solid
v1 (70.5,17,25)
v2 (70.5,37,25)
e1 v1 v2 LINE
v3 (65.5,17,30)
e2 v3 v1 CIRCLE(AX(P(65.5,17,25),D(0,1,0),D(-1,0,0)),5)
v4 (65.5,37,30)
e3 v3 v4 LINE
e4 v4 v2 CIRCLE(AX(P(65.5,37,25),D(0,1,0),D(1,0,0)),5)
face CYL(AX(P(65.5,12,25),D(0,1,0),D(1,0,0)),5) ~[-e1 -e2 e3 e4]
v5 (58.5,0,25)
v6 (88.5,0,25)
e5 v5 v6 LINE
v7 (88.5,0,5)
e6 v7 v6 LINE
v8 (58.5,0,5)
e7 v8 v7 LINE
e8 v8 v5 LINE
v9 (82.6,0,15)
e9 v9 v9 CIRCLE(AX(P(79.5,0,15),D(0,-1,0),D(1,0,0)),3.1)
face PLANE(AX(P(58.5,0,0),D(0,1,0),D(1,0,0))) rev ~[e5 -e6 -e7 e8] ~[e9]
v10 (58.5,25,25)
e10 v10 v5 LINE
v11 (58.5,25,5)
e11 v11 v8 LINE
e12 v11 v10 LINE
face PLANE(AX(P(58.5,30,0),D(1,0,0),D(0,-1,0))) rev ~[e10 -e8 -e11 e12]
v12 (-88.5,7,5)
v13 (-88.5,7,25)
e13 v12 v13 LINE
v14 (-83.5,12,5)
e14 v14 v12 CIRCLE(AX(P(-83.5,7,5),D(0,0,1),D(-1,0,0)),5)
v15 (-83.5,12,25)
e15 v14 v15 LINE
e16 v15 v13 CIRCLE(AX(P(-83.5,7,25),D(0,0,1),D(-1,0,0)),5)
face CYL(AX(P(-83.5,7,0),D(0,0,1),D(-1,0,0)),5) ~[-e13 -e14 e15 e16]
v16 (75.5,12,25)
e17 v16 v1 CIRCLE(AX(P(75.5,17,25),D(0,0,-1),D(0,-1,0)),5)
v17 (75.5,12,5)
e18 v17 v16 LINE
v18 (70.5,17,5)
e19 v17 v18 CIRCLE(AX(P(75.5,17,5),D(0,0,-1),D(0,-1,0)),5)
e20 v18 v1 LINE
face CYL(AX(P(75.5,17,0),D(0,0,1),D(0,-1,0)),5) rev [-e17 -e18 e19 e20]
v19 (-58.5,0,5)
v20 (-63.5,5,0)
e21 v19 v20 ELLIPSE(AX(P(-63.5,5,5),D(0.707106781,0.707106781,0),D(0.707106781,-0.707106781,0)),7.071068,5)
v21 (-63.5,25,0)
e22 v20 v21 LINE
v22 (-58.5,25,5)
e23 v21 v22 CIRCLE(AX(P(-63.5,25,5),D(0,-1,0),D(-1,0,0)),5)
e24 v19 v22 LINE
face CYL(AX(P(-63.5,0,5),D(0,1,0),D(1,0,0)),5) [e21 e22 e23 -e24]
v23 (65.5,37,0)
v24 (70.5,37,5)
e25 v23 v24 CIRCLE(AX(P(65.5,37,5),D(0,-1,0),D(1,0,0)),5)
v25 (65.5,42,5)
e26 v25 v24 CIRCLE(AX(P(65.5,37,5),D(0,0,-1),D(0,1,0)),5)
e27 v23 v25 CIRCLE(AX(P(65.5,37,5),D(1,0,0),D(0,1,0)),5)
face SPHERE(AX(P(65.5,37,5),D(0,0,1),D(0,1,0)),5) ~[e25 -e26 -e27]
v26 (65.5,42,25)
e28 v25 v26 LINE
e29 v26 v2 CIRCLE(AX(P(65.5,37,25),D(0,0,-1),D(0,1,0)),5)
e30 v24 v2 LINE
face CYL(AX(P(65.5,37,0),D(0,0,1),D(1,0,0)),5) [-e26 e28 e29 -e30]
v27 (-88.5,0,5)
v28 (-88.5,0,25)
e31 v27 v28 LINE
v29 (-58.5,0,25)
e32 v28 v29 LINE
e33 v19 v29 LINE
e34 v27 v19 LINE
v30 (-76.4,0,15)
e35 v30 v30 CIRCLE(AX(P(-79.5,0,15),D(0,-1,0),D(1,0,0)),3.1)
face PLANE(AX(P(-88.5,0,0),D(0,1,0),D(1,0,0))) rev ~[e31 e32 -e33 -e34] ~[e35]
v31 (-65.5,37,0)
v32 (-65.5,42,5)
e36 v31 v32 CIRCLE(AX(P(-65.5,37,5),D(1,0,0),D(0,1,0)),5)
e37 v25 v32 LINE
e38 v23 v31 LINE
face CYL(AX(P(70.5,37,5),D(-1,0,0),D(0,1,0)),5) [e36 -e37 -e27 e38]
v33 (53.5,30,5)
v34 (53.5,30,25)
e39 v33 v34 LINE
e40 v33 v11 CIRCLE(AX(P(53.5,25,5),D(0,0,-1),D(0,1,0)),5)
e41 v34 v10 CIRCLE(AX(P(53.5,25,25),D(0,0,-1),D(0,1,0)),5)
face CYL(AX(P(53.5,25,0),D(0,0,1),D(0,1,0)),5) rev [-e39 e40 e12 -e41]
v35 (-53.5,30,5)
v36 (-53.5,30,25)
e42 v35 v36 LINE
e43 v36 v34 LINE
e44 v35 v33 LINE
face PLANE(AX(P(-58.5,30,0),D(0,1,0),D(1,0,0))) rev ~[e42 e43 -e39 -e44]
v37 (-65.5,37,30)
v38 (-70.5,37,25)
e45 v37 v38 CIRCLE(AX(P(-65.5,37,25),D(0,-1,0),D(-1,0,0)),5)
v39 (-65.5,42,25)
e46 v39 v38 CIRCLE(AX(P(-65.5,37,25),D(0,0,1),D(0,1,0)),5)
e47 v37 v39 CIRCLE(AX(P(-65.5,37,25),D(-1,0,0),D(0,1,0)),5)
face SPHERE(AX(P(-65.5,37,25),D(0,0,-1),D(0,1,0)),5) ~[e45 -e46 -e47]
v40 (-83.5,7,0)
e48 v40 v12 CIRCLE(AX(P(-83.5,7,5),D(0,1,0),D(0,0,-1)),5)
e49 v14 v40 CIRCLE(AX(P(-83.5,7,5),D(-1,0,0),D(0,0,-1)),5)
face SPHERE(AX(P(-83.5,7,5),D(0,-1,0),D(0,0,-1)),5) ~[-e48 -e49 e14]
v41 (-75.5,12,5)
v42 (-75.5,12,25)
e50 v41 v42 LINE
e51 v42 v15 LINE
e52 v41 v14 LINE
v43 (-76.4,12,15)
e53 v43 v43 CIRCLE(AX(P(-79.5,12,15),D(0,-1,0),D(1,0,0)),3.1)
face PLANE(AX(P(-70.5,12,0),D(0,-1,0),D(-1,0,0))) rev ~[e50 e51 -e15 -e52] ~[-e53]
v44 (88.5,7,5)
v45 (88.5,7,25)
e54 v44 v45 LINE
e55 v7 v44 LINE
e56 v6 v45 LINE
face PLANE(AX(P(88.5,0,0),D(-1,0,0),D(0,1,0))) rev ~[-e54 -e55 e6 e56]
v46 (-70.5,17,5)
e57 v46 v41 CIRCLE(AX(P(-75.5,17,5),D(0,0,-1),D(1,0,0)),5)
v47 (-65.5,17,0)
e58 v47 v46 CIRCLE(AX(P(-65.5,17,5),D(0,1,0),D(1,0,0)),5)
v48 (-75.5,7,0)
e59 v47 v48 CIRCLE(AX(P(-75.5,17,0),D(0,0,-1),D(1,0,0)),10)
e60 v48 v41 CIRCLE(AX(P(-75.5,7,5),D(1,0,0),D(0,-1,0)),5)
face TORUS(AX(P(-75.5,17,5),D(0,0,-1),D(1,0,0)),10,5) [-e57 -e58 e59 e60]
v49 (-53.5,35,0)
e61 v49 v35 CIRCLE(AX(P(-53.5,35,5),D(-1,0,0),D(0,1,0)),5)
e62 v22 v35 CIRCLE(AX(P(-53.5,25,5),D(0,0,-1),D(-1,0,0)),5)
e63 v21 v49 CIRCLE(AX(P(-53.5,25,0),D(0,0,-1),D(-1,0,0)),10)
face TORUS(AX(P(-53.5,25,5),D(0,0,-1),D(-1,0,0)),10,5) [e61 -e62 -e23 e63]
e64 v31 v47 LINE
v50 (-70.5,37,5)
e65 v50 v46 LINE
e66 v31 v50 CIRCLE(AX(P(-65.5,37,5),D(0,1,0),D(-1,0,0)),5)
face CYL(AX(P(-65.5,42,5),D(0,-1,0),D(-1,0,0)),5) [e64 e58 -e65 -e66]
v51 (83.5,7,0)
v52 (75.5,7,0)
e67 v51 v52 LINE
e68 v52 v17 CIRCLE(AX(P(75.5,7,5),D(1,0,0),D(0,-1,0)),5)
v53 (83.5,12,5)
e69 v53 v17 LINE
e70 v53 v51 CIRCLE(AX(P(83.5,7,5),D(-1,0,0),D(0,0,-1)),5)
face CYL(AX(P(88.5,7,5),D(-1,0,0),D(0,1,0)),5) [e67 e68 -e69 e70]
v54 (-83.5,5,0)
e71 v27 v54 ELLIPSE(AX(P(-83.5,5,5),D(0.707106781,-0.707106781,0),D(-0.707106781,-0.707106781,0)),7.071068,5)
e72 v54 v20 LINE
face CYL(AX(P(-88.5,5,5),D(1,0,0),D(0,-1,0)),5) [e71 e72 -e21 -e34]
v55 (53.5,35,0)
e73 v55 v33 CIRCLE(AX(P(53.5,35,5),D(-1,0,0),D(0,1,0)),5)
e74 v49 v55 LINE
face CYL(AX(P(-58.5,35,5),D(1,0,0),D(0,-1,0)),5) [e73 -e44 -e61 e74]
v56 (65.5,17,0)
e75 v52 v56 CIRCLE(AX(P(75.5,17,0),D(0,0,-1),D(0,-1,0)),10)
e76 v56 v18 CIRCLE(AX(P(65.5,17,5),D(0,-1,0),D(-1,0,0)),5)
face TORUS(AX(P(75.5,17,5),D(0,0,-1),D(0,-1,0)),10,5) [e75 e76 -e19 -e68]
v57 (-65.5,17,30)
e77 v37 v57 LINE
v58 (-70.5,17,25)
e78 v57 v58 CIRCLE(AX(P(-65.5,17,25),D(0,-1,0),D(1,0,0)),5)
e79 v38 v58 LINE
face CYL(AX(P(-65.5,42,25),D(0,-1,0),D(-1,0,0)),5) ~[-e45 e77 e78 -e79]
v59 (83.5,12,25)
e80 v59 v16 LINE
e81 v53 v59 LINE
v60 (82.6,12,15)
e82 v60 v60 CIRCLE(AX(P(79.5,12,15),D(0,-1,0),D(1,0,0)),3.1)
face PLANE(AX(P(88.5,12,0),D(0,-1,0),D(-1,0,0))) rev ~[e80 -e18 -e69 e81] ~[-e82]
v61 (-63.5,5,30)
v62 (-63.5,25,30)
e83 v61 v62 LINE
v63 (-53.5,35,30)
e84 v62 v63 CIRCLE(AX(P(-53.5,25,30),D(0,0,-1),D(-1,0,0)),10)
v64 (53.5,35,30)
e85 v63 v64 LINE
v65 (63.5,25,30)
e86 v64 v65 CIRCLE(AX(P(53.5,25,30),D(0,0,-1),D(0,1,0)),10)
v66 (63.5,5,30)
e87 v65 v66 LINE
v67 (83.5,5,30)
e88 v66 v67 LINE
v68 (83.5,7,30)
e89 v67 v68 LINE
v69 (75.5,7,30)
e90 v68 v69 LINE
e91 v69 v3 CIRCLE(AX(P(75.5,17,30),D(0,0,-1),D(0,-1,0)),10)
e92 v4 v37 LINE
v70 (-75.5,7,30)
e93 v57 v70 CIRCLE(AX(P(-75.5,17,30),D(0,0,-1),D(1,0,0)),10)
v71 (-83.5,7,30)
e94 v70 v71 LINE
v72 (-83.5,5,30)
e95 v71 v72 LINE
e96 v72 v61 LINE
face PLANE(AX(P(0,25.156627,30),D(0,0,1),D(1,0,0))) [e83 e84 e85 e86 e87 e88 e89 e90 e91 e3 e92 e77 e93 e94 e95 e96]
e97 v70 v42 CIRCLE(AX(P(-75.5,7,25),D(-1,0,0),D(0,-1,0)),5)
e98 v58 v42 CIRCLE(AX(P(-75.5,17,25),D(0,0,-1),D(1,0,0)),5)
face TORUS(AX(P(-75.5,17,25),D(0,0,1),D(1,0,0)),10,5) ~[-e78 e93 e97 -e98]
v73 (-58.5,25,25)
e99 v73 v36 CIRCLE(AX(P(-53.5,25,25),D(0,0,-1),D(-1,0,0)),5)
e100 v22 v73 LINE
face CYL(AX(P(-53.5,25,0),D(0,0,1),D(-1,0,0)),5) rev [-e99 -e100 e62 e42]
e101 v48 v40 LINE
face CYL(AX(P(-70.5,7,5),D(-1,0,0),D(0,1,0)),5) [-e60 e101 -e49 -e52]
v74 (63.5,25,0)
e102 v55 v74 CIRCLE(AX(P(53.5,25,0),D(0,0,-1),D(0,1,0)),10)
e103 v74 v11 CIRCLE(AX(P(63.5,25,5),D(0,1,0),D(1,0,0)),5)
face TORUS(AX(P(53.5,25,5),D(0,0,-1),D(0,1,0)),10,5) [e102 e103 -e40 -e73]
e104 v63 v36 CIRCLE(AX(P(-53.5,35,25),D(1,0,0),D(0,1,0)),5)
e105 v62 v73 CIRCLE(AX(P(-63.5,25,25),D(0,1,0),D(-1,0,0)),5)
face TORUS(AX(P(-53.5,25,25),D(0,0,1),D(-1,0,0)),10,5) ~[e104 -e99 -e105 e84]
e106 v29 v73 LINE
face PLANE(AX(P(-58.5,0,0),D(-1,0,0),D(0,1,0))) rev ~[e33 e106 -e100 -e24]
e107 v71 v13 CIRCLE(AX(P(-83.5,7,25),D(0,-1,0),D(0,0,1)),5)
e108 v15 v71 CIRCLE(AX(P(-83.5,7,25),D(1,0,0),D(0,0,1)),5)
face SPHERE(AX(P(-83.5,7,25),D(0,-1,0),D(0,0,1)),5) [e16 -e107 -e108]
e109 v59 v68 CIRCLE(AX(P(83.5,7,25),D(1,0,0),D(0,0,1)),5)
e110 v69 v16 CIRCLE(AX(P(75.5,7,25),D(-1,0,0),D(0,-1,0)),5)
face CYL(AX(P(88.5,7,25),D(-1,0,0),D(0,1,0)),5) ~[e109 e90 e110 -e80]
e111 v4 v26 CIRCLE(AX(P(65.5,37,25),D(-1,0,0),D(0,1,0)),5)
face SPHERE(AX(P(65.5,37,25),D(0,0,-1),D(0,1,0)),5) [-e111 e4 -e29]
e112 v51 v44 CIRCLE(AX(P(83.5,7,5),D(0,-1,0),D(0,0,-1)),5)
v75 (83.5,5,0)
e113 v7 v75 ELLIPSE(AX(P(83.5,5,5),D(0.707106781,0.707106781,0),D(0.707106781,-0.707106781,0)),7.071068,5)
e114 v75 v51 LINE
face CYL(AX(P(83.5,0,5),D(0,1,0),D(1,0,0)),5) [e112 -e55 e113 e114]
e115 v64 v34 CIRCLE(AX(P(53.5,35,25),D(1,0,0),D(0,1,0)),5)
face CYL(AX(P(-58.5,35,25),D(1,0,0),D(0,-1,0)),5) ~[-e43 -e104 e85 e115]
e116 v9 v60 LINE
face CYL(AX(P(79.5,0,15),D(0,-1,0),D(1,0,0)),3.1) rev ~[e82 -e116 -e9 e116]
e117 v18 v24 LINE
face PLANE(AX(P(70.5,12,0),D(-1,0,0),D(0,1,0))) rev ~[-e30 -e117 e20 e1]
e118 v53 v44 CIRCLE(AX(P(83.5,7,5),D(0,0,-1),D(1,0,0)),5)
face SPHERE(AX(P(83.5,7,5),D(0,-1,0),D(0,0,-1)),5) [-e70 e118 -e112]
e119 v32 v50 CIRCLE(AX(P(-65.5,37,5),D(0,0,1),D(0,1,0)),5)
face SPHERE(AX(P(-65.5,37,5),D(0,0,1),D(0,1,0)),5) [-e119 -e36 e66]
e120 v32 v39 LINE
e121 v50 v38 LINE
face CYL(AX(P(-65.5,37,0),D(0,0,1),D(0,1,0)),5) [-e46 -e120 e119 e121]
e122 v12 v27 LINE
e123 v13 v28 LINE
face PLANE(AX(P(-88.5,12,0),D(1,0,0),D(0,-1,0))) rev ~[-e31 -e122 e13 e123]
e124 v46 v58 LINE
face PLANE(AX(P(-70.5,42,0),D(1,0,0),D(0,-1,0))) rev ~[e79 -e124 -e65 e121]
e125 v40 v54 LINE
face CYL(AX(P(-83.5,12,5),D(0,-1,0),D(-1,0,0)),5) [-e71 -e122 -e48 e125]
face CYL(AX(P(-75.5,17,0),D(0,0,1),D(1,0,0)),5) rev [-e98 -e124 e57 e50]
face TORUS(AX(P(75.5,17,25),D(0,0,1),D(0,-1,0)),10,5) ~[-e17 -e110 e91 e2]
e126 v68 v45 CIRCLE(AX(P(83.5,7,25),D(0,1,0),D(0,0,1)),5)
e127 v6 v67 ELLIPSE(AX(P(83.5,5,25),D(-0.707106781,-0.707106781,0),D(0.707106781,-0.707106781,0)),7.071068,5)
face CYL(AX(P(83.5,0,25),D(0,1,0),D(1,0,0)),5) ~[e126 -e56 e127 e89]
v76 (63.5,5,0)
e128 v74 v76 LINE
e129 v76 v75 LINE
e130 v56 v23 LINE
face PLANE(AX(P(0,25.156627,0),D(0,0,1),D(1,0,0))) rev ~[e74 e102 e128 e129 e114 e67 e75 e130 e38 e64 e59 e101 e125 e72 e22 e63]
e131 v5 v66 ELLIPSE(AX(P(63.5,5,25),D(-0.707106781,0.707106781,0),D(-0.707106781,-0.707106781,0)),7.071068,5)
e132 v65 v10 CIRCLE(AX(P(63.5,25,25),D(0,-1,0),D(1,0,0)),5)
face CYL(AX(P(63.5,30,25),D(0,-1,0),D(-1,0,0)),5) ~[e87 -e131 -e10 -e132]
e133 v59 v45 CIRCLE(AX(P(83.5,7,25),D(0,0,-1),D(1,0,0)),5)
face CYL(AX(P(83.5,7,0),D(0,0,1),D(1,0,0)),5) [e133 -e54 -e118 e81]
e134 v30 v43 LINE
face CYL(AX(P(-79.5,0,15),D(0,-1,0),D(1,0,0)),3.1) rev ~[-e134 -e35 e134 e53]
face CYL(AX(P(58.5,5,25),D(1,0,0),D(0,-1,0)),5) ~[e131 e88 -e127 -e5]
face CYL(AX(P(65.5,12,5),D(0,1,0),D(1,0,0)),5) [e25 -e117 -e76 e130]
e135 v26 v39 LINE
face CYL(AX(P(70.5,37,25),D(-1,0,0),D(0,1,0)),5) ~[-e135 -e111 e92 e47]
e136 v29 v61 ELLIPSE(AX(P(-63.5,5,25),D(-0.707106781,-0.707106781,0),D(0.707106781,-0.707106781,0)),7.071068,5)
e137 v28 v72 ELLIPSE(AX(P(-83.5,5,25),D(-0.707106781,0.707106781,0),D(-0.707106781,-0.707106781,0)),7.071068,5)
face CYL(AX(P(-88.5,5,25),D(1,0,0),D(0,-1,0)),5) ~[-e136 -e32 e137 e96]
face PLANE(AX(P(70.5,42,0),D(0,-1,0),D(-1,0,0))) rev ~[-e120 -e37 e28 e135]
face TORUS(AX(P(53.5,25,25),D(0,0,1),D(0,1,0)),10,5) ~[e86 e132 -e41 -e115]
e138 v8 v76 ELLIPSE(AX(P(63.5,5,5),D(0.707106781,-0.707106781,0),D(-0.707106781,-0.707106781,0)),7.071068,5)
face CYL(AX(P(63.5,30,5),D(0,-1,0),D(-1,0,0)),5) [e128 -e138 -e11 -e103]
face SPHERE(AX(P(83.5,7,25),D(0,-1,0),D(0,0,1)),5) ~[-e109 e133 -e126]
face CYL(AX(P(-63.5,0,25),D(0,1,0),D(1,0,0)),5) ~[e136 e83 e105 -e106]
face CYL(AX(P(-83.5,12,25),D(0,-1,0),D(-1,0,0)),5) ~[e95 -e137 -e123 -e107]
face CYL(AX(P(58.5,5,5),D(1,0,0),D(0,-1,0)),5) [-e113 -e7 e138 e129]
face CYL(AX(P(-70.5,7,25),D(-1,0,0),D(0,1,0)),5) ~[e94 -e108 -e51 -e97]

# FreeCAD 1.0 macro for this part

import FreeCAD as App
import Part
import Sketcher
Q = App.Units.Quantity


def edges_at(feature, points):
    """Names of the edges that pass closest to the given points."""
    edges = feature.Shape.Edges
    near = lambda p: min(range(len(edges)), key=lambda i: edges[i].distToShape(Part.Vertex(*p))[0])
    return sorted({f"Edge{near(p) + 1}" for p in points})


def add_polygon(sketch, points):
    """Adds a closed chain of lines whose ends are joined by coincident constraints."""
    first, n = sketch.GeometryCount, len(points)
    for a, b in zip(points, points[1:] + points[:1]):
        sketch.addGeometry(Part.LineSegment(App.Vector(*a, 0), App.Vector(*b, 0)), False)
    for i in range(n):
        sketch.addConstraint(Sketcher.Constraint("Coincident", first + i, 2, first + (i + 1) % n, 1))

doc = App.newDocument("Part")
params = doc.addObject("Spreadsheet::Sheet", "Params")
for row, (alias, value) in enumerate([
    ("sketch1_width", "30 mm"),
    ("sketch1_width2", "117 mm"),
    ("sketch1_width3", "18 mm"),
    ("sketch1_height", "12 mm"),
    ("pad1_length", "30 mm"),
    ("fillet_radius", "5 mm"),
    ("sketch2_diameter", "6.2 mm"),
    ("pocket1_length", "25 mm"),
], start=1):
    params.set(f"A{row}", alias)
    params.set(f"B{row}", "=" + value)
    params.setAlias(f"B{row}", alias)

body = doc.addObject("PartDesign::Body", "Body")

# Sketch on XY plane
sketch1 = body.newObject("Sketcher::SketchObject", "Sketch")
sketch1.AttachmentSupport = (doc.getObject("XY_Plane"), [""])
sketch1.MapMode = "FlatFace"
add_polygon(sketch1, [(-88, 12), (-88, 0), (-58, 0), (-58, 30), (58, 30), (58, 0), (88, 0), (88, 12), (70, 12), (70, 42), (-70, 42), (-70, 12)])  # lines 0-11
sketch1.addConstraint([
    Sketcher.Constraint("Vertical", 0),
    Sketcher.Constraint("Horizontal", 1),
    Sketcher.Constraint("Vertical", 2),
    Sketcher.Constraint("Horizontal", 3),
    Sketcher.Constraint("Vertical", 4),
    Sketcher.Constraint("Horizontal", 5),
    Sketcher.Constraint("Vertical", 6),
    Sketcher.Constraint("Horizontal", 7),
    Sketcher.Constraint("Vertical", 8),
    Sketcher.Constraint("Horizontal", 9),
    Sketcher.Constraint("Vertical", 10),
    Sketcher.Constraint("Horizontal", 11),
    Sketcher.Constraint("Symmetric", 1, 2, 4, 2, -1, 1),
    Sketcher.Constraint("Symmetric", 0, 2, 5, 2, -2),
    Sketcher.Constraint("Symmetric", 7, 2, 10, 2, -2),
    Sketcher.Constraint("Equal", 5, 2),
    Sketcher.Constraint("Equal", 4, 8),
    Sketcher.Constraint("DistanceX", 1, 1, 1, 2, Q("30 mm")),
    Sketcher.Constraint("DistanceX", 3, 1, 3, 2, Q("117 mm")),
    Sketcher.Constraint("DistanceX", 7, 2, 7, 1, Q("18 mm")),
    Sketcher.Constraint("DistanceY", 0, 2, 0, 1, Q("12 mm")),
])
sketch1.setExpression("Constraints[29]", "Params.sketch1_width")
sketch1.setExpression("Constraints[30]", "Params.sketch1_width2")
sketch1.setExpression("Constraints[31]", "Params.sketch1_width3")
sketch1.setExpression("Constraints[32]", "Params.sketch1_height")
pad1 = body.newObject("PartDesign::Pad", "Pad")
pad1.Profile = sketch1
pad1.setExpression("Length", "Params.pad1_length")
doc.recompute()

fillet = body.newObject("PartDesign::Fillet", "Fillet")
fillet.Base = (pad1, edges_at(pad1, [
    (70.5, 42, 15),
    (-70.5, 42, 15),
    (0, 42, 0),
    (0, 42, 30),
    (-88.5, 6, 30),
    (-73.5, 0, 30),
    (-58.5, 15, 30),
    (0, 30, 30),
    (58.5, 15, 30),
    (73.5, 0, 30),
    (88.5, 6, 30),
    (79.5, 12, 30),
    (70.5, 27, 30),
    (-70.5, 27, 30),
    (-79.5, 12, 30),
    (-88.5, 6, 0),
    (-73.5, 0, 0),
    (-58.5, 15, 0),
    (0, 30, 0),
    (58.5, 15, 0),
    (73.5, 0, 0),
    (88.5, 6, 0),
    (79.5, 12, 0),
    (70.5, 27, 0),
    (-70.5, 27, 0),
    (-79.5, 12, 0),
    (70.5, 12, 15),
    (-70.5, 12, 15),
    (-58.5, 30, 15),
    (58.5, 30, 15),
    (-88.5, 12, 15),
    (88.5, 12, 15),
]))
fillet.setExpression("Radius", "Params.fillet_radius")

# Sketch on XZ plane
sketch2 = body.newObject("Sketcher::SketchObject", "Sketch001")
sketch2.AttachmentSupport = (doc.getObject("XZ_Plane"), [""])
sketch2.MapMode = "FlatFace"
sketch2.addGeometry([
    Part.Circle(App.Vector(79.5, 15, 0), App.Vector(0, 0, 1), 3.1),
    Part.Circle(App.Vector(-79.5, 15, 0), App.Vector(0, 0, 1), 3.1),
], False)
sketch2.addConstraint([
    Sketcher.Constraint("Equal", 0, 1),
    Sketcher.Constraint("Symmetric", 0, 3, 1, 3, -2),
    Sketcher.Constraint("Diameter", 0, Q("6.2 mm")),
    Sketcher.Constraint("DistanceY", -1, 1, 0, 3, Q("15 mm")),
    Sketcher.Constraint("DistanceX", 1, 3, 0, 3, Q("159 mm")),
])
sketch2.setExpression("Constraints[2]", "Params.sketch2_diameter")
pocket1 = body.newObject("PartDesign::Pocket", "Pocket")
pocket1.Profile = sketch2
pocket1.setExpression("Length", "Params.pocket1_length")

doc.recompute()
